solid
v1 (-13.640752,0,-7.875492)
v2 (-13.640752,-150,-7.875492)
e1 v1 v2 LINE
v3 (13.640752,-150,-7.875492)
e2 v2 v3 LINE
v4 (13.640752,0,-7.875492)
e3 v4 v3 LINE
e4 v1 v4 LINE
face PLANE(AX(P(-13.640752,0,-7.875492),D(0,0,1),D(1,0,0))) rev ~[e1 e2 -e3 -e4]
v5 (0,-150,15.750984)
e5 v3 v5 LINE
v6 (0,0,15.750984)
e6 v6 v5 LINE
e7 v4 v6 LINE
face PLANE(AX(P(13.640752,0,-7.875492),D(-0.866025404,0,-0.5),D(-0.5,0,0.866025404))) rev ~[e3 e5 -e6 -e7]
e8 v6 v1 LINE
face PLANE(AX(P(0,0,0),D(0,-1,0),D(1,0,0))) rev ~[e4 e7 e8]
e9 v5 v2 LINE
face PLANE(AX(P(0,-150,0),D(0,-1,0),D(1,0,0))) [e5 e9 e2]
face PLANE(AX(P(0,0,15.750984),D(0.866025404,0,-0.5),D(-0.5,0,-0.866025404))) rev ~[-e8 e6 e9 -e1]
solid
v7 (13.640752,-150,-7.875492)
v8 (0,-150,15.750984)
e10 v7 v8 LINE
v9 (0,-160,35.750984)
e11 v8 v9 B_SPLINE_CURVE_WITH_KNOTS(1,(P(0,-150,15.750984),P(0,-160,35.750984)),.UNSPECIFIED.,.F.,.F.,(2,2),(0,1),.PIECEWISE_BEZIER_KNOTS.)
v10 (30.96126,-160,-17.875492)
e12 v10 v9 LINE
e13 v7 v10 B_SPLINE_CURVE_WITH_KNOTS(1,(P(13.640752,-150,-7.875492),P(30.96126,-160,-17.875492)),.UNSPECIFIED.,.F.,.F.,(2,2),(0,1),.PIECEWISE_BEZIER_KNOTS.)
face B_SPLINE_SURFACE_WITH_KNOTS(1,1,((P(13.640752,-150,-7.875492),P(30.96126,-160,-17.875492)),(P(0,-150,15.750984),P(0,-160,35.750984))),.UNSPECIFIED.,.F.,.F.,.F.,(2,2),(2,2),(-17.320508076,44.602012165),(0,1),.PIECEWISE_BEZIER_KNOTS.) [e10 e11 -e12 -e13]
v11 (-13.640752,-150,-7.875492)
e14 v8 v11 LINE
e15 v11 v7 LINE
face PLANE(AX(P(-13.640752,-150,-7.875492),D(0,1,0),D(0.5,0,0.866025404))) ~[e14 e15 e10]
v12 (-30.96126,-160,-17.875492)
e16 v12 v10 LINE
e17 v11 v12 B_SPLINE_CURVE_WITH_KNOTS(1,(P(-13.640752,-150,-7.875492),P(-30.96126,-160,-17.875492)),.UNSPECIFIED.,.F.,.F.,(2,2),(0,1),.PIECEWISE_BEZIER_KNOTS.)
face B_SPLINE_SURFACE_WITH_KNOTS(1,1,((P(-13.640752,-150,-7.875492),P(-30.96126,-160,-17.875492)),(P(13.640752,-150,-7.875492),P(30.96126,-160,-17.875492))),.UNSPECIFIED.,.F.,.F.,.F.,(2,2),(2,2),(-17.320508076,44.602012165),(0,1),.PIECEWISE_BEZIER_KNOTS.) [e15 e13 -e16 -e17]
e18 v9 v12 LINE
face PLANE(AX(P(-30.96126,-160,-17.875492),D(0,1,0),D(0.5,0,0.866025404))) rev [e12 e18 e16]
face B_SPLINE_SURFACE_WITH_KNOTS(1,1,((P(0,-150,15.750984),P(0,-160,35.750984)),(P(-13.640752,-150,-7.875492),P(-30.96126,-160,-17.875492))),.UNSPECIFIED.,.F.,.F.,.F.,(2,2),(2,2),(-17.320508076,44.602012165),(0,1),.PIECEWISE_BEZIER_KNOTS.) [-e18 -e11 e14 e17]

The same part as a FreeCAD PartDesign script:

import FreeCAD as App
import Part
import Sketcher
from FreeCAD import Vector
Q = App.Units.Quantity


def add_polygon(sketch, points):
    """Adds a closed chain of lines whose ends are joined by coincident constraints."""
    first, n = sketch.GeometryCount, len(points)
    for a, b in zip(points, points[1:] + points[:1]):
        sketch.addGeometry(Part.LineSegment(App.Vector(*a, 0), App.Vector(*b, 0)), False)
    for i in range(n):
        sketch.addConstraint(Sketcher.Constraint("Coincident", first + i, 2, first + (i + 1) % n, 1))

doc = App.newDocument("Part")
body = doc.addObject("PartDesign::Body", "Body")

# Sketch on XZ plane
sketch1 = body.newObject("Sketcher::SketchObject", "Sketch")
sketch1.AttachmentSupport = (doc.getObject("XZ_Plane"), [""])
sketch1.MapMode = "FlatFace"
add_polygon(sketch1, [(14, -8), (0, 16), (-14, -8)])  # lines 0-2
sketch1.addConstraint(Sketcher.Constraint("Horizontal", 2))
sketch1.addConstraint(Sketcher.Constraint("PointOnObject", 0, 2, -2))
sketch1.addConstraint(Sketcher.Constraint("Equal", 0, 1))
sketch1.addConstraint(Sketcher.Constraint("Angle", 0, Q("120 deg")))
sketch1.addConstraint(Sketcher.Constraint("DistanceX", 2, 1, 2, 2, 27.281504))
sketch1.addConstraint(Sketcher.Constraint("DistanceY", 1, 2, -1, 1, 7.875492))
pad1 = body.newObject("PartDesign::Pad", "Pad")
pad1.Profile = sketch1
pad1.Length = 150
body2 = doc.addObject("PartDesign::Body", "Body001")

# Sketch on XZ plane
sketch2 = body2.newObject("Sketcher::SketchObject", "Sketch001")
sketch2.AttachmentSupport = (doc.getObject("XZ_Plane001"), [""])
sketch2.MapMode = "FlatFace"
sketch2.AttachmentOffset = App.Placement(Vector(0, 0, 150), App.Rotation())
add_polygon(sketch2, [(-14, -8), (14, -8), (0, 16)])  # lines 0-2
sketch2.addConstraint(Sketcher.Constraint("Horizontal", 0))
sketch2.addConstraint(Sketcher.Constraint("PointOnObject", 1, 2, -2))
sketch2.addConstraint(Sketcher.Constraint("Equal", 1, 2))
sketch2.addConstraint(Sketcher.Constraint("Angle", 1, Q("120 deg")))
sketch2.addConstraint(Sketcher.Constraint("DistanceX", 0, 1, 0, 2, 27.281504))
sketch2.addConstraint(Sketcher.Constraint("DistanceY", 0, 2, -1, 1, 7.875492))
pad2 = body2.newObject("PartDesign::Pad", "Pad001")
pad2.Profile = sketch2
pad2.Length = 10
pad2.TaperAngle = 45

doc.recompute()
